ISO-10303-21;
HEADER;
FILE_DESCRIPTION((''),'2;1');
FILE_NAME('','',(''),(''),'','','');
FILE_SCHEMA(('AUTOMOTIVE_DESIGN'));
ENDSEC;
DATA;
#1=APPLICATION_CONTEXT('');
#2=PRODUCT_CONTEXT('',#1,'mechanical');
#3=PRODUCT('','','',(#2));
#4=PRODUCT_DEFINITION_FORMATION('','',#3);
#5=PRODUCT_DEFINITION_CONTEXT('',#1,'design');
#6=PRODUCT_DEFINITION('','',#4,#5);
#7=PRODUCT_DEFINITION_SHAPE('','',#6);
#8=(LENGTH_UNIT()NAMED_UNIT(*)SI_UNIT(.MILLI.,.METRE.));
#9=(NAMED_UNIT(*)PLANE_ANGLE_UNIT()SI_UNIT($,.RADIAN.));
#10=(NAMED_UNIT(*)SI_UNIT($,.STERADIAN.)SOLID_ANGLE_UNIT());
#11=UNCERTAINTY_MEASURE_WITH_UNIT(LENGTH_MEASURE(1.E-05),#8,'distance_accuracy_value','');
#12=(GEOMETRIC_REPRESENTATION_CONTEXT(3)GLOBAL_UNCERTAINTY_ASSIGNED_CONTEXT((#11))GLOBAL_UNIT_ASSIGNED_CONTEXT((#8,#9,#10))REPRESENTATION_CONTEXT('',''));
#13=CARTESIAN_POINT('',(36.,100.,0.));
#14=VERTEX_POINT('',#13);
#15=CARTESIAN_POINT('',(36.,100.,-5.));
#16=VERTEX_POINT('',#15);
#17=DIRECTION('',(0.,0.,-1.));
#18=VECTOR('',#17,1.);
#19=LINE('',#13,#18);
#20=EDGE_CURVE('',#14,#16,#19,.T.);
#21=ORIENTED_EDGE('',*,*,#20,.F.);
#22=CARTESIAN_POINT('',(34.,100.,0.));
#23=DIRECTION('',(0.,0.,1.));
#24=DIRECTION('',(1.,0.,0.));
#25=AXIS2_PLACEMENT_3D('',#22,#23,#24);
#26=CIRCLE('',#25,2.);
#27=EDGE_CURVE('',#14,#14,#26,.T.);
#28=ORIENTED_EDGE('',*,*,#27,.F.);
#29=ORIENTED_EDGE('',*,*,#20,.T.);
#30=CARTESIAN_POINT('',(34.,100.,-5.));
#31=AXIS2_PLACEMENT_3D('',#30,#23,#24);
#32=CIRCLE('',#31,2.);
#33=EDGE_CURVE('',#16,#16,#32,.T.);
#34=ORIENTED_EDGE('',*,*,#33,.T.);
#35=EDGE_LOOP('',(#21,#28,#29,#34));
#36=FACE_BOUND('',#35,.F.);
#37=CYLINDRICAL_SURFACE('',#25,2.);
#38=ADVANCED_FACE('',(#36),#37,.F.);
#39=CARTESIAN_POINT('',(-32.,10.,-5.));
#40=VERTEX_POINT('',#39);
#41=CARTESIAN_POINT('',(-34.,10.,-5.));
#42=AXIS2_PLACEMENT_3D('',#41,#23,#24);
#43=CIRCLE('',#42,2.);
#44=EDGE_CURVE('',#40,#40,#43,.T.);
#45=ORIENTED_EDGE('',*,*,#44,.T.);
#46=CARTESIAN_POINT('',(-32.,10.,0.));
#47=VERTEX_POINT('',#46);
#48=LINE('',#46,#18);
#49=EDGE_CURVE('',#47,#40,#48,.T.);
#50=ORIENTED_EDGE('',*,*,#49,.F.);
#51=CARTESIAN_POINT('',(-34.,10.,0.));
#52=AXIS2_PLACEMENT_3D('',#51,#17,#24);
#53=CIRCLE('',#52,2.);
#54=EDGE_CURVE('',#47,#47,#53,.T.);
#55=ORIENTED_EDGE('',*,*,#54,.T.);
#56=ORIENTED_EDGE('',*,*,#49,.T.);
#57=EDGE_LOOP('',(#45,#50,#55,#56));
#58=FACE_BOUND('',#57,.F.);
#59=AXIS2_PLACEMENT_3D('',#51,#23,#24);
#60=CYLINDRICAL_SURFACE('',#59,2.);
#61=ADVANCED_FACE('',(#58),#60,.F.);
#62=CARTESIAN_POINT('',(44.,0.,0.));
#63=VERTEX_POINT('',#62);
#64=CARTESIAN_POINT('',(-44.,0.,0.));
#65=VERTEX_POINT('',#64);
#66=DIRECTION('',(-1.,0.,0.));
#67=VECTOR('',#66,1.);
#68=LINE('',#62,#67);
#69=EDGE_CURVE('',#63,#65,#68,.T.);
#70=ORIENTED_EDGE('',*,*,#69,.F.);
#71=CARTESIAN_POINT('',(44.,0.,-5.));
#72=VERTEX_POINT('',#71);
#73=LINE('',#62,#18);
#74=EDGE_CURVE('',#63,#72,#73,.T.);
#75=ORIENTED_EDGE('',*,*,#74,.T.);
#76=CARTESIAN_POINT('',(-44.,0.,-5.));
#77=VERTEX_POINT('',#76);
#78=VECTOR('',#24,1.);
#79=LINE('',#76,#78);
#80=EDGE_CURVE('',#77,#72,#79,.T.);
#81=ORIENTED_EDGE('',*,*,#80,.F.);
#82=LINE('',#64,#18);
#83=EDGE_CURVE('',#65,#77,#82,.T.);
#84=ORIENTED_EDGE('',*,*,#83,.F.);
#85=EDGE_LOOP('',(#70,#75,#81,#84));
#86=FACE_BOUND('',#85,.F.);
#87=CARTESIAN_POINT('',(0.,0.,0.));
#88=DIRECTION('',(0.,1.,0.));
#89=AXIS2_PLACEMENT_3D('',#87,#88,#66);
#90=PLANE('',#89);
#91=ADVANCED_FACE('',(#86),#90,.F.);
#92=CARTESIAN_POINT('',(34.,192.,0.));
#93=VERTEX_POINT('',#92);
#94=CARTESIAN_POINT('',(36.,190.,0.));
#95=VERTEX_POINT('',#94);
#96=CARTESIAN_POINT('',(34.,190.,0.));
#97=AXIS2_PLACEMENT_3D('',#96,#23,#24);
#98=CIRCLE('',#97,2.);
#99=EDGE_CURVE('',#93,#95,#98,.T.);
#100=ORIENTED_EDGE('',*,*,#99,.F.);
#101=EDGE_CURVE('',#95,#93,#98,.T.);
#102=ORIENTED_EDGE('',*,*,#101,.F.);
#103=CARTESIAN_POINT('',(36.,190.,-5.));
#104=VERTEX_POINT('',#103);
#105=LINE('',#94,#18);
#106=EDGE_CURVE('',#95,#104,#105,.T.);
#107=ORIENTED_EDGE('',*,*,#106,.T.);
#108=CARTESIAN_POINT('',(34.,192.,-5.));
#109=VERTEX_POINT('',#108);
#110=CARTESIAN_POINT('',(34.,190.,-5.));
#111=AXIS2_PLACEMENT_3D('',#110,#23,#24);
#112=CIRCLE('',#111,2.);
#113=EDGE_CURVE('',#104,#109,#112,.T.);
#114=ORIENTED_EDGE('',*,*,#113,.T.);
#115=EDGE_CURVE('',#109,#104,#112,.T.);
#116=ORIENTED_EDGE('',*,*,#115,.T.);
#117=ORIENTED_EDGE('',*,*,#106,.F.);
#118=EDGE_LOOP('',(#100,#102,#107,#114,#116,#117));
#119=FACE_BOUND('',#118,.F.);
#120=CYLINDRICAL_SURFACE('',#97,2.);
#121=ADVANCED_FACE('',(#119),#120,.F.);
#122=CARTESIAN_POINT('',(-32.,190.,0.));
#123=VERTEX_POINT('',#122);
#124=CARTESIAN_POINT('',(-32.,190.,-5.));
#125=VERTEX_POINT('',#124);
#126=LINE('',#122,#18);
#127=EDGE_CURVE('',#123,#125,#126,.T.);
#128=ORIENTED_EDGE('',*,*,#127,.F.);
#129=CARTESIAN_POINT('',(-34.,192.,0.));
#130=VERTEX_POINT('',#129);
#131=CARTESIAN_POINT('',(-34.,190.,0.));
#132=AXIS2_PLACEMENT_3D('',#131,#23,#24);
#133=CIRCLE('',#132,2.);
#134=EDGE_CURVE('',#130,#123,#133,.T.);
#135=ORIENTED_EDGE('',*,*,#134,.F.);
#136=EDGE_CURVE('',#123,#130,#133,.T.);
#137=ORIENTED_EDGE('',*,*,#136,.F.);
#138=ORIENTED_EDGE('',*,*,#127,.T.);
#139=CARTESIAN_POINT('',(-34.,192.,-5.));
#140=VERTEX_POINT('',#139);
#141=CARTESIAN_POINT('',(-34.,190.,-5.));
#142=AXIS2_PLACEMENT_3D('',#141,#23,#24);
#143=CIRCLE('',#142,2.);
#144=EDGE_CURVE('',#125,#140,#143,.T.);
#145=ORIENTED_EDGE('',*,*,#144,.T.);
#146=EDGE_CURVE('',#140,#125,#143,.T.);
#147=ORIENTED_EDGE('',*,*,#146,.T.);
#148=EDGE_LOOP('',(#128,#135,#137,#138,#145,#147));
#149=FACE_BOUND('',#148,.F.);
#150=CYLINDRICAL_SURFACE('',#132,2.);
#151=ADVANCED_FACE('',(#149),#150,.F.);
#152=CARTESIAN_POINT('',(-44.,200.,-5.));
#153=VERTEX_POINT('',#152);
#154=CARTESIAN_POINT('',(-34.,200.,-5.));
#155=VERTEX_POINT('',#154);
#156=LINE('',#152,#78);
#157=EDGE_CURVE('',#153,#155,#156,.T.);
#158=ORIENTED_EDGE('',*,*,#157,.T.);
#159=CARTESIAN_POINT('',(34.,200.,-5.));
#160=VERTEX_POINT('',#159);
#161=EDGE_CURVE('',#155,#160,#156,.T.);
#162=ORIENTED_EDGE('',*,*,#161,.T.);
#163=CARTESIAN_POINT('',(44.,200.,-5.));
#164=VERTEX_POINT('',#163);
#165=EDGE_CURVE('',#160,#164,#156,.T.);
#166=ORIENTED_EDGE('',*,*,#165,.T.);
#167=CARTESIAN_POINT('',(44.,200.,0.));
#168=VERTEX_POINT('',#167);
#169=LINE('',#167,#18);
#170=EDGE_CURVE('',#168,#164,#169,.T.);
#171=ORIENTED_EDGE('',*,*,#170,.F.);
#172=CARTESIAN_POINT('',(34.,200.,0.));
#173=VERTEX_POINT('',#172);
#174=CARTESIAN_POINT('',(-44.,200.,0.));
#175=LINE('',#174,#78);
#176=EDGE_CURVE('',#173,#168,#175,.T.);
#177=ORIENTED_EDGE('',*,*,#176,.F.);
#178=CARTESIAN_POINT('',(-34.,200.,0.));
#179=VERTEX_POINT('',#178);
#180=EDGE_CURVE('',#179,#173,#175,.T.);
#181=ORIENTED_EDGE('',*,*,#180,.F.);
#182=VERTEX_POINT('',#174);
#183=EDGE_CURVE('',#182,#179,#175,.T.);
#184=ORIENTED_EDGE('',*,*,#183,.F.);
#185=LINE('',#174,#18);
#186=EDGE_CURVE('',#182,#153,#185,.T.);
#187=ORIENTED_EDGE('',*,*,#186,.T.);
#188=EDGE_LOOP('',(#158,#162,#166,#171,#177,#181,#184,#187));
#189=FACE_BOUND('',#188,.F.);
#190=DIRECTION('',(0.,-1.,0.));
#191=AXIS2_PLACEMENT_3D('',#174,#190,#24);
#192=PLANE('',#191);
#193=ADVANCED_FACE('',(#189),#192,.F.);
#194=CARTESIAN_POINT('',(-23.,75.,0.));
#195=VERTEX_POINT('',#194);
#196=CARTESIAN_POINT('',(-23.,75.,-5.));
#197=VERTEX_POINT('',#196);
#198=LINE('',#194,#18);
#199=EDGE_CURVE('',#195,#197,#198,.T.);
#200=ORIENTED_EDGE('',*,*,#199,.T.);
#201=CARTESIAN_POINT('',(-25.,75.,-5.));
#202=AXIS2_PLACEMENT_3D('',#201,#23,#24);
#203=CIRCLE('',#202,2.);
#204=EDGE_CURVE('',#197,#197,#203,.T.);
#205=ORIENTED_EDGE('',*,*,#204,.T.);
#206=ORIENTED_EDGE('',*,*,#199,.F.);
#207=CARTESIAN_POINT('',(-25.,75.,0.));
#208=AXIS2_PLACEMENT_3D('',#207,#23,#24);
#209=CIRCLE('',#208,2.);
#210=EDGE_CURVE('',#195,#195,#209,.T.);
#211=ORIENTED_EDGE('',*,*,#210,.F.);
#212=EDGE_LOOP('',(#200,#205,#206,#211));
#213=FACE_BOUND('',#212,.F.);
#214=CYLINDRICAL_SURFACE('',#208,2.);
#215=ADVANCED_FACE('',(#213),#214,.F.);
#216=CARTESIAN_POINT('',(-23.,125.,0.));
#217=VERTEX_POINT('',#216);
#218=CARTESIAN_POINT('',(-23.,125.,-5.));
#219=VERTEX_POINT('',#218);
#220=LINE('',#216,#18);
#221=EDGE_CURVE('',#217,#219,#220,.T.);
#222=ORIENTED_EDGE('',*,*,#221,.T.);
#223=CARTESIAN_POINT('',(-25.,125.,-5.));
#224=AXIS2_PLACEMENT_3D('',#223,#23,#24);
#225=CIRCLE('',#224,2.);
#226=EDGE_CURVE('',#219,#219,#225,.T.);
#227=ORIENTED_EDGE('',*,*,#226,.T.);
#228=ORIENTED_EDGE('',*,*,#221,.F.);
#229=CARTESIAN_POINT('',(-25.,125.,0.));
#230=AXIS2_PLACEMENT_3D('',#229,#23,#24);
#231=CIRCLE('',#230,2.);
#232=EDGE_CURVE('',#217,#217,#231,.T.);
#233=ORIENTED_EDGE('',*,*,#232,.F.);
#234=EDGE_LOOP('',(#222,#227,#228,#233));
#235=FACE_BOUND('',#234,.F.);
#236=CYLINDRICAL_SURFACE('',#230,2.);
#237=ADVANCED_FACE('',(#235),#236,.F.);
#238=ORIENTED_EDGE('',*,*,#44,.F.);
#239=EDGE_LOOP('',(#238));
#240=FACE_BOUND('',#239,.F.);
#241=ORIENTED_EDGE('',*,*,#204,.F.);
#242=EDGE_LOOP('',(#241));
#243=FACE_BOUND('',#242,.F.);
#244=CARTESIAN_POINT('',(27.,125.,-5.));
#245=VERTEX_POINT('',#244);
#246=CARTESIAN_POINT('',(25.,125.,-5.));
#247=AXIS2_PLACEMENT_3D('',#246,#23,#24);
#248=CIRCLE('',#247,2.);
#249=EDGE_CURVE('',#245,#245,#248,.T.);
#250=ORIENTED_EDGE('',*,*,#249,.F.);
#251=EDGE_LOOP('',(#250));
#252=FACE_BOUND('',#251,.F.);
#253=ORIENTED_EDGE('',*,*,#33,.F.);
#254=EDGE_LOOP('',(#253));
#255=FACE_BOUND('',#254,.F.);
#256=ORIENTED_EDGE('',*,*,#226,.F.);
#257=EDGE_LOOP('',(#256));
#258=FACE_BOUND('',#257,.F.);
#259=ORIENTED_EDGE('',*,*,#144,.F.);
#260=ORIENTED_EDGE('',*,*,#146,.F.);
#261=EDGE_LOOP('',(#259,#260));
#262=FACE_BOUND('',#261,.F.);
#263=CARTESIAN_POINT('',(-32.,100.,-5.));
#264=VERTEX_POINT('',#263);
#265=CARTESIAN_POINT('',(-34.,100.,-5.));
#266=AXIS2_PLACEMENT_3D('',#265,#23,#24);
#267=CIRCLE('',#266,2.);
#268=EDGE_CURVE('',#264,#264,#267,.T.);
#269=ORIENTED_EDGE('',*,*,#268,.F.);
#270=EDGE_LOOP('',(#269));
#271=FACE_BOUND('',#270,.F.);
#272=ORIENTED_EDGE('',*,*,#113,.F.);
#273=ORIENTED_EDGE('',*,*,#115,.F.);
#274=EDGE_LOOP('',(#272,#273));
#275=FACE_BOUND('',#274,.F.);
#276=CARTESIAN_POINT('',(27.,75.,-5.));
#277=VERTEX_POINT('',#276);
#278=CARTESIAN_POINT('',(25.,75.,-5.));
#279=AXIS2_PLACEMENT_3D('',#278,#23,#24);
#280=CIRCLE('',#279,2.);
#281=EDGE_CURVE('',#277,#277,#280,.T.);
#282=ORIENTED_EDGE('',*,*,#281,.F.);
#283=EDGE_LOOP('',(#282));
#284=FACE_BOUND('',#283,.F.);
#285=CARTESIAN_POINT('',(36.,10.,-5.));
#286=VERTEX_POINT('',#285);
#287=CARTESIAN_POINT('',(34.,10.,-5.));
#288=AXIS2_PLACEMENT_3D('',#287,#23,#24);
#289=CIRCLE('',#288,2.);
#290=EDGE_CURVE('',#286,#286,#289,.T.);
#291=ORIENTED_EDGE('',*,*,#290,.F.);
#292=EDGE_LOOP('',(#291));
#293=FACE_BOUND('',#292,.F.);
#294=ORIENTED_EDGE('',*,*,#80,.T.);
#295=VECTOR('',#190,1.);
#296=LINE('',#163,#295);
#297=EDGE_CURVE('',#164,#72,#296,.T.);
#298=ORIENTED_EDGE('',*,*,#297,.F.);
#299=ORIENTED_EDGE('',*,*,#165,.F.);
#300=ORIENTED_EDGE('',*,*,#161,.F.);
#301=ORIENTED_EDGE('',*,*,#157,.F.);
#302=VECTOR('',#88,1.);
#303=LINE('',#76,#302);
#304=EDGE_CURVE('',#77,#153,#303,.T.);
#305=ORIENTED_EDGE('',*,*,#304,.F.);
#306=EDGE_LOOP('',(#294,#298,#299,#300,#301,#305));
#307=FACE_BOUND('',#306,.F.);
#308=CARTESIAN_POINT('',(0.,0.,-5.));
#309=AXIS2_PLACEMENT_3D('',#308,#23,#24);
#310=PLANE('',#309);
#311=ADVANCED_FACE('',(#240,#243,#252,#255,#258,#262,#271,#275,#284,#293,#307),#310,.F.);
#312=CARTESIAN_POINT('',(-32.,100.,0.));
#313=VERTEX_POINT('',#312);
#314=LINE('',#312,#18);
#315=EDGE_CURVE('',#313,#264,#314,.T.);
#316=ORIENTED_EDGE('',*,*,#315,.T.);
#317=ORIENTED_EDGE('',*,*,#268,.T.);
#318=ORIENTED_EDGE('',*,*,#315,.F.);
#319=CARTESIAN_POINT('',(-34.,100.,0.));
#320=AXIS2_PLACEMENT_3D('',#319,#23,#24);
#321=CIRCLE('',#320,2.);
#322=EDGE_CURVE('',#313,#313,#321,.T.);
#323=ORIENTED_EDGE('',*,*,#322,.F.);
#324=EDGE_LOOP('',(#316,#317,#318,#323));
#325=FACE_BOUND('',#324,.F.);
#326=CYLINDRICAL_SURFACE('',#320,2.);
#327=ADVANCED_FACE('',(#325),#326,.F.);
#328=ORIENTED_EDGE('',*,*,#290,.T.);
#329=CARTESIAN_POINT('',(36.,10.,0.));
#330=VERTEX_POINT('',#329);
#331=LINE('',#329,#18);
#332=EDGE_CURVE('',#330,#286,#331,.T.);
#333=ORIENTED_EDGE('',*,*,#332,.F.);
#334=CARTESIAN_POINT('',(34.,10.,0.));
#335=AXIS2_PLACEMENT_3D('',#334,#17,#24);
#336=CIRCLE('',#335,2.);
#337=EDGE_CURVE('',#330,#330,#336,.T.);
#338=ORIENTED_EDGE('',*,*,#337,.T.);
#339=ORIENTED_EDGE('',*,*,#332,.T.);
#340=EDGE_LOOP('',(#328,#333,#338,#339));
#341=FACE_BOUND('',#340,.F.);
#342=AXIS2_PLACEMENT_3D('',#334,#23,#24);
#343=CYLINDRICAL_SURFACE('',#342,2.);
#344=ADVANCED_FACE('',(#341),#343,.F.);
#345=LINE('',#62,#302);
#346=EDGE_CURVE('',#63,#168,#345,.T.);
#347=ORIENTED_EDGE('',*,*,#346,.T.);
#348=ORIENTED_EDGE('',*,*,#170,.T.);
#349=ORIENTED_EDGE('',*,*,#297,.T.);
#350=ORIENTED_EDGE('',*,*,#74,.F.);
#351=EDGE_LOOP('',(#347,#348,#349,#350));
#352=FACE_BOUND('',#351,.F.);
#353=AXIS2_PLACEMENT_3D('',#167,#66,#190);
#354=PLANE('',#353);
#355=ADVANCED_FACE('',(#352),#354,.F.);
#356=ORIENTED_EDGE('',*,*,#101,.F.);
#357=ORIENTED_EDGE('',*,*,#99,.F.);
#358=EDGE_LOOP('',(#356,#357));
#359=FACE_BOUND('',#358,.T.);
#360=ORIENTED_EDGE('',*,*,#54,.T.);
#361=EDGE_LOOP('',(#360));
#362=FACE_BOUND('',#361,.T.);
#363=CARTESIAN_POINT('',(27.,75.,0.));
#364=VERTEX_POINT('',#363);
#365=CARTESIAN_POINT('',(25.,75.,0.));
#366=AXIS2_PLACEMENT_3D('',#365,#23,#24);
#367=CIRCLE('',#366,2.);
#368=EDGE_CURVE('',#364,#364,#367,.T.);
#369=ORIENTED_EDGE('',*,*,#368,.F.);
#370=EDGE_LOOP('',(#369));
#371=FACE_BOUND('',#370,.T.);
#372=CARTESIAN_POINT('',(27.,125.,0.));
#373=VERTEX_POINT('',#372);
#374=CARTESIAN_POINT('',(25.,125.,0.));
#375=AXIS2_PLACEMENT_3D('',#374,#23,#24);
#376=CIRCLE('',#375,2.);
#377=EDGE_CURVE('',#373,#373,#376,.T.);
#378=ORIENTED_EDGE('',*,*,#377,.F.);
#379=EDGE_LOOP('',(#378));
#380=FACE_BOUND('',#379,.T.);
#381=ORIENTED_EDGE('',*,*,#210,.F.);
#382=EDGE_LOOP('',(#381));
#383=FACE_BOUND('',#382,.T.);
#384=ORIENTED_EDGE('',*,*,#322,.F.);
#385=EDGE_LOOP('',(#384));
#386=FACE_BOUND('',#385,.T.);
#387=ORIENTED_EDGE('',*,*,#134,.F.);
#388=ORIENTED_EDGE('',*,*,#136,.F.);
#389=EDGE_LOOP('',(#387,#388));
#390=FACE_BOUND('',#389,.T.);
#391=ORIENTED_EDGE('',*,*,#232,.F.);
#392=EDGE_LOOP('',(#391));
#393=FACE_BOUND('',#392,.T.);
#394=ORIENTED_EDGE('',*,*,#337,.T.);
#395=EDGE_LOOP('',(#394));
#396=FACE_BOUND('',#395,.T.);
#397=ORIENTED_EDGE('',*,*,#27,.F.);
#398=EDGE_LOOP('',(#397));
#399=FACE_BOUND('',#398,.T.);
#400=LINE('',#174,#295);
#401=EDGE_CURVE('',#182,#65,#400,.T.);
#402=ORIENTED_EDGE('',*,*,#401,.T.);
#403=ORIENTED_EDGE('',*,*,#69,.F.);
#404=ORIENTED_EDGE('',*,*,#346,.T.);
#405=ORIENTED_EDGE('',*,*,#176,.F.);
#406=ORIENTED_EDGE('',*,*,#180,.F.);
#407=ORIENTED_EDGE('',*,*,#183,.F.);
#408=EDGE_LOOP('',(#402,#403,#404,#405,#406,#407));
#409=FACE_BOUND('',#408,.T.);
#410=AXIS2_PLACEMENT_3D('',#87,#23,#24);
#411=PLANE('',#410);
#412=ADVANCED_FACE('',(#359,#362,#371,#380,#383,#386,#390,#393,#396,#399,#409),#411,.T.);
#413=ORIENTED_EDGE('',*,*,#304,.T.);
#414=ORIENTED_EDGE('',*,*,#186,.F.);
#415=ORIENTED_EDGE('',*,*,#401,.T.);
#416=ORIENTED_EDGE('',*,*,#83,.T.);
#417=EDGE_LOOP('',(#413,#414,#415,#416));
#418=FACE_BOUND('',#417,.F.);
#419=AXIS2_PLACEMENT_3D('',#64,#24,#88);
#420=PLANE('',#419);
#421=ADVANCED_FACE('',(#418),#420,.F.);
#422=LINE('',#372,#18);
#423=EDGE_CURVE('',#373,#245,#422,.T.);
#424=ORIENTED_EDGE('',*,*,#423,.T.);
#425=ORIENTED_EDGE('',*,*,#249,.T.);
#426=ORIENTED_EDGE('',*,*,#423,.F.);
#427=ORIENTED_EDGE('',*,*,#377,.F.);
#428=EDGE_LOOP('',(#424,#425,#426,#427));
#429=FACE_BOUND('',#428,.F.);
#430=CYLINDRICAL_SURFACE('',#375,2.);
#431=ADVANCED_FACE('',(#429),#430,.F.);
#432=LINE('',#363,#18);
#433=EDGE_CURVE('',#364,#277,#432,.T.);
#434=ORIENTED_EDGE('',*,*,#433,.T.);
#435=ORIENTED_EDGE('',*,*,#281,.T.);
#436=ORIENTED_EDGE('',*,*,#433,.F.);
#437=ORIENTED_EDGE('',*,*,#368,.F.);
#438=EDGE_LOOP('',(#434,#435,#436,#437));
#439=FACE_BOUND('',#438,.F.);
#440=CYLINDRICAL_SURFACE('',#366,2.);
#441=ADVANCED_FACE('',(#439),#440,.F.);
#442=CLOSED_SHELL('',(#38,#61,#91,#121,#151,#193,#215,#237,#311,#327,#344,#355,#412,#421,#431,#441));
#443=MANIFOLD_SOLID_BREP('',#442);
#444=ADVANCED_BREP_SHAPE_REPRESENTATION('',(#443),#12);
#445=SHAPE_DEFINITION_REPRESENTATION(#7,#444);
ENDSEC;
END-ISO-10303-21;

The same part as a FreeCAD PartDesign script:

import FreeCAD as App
import Part
import Sketcher
from FreeCAD import Vector
Q = App.Units.Quantity

doc = App.newDocument("Part")
body = doc.addObject("PartDesign::Body", "Body")

# Sketch on XY plane
sketch1 = body.newObject("Sketcher::SketchObject", "Sketch")
sketch1.AttachmentSupport = (doc.getObject("XY_Plane"), [""])
sketch1.MapMode = "FlatFace"
sketch1.addGeometry([
    Part.LineSegment(Vector(44, 0, 0), Vector(44, 200, 0)),  # 0
    Part.LineSegment(Vector(44, 200, 0), Vector(34, 200, 0)),  # 1
    Part.LineSegment(Vector(34, 200, 0), Vector(-34, 200, 0)),  # 2
    Part.LineSegment(Vector(-34, 200, 0), Vector(-44, 200, 0)),  # 3
    Part.LineSegment(Vector(-44, 200, 0), Vector(-44, 0, 0)),  # 4
    Part.LineSegment(Vector(-44, 0, 0), Vector(44, 0, 0)),  # 5
    Part.Circle(Vector(-34, 10, 0), Vector(0, 0, 1), 2),  # 6
    Part.Circle(Vector(34, 10, 0), Vector(0, 0, 1), 2),  # 7
    Part.Circle(Vector(-25, 75, 0), Vector(0, 0, 1), 2),  # 8
    Part.Circle(Vector(25, 75, 0), Vector(0, 0, 1), 2),  # 9
    Part.Circle(Vector(-34, 100, 0), Vector(0, 0, 1), 2),  # 10
    Part.Circle(Vector(-25, 125, 0), Vector(0, 0, 1), 2),  # 11
    Part.Circle(Vector(-34, 190, 0), Vector(0, 0, 1), 2),  # 12
    Part.Circle(Vector(34, 100, 0), Vector(0, 0, 1), 2),  # 13
    Part.Circle(Vector(25, 125, 0), Vector(0, 0, 1), 2),  # 14
    Part.Circle(Vector(34, 190, 0), Vector(0, 0, 1), 2),  # 15
], False)
sketch1.addConstraint([
    Sketcher.Constraint("Coincident", 0, 2, 1, 1),
    Sketcher.Constraint("Coincident", 1, 2, 2, 1),
    Sketcher.Constraint("Coincident", 2, 2, 3, 1),
    Sketcher.Constraint("Coincident", 3, 2, 4, 1),
    Sketcher.Constraint("Coincident", 4, 2, 5, 1),
    Sketcher.Constraint("Coincident", 5, 2, 0, 1),
    Sketcher.Constraint("Vertical", 0),
    Sketcher.Constraint("Horizontal", 1),
    Sketcher.Constraint("Horizontal", 2),
    Sketcher.Constraint("Horizontal", 3),
    Sketcher.Constraint("Vertical", 4),
    Sketcher.Constraint("Horizontal", 5),
    Sketcher.Constraint("Equal", 6, 7),
    Sketcher.Constraint("Equal", 7, 8),
    Sketcher.Constraint("Equal", 8, 9),
    Sketcher.Constraint("Equal", 9, 10),
    Sketcher.Constraint("Equal", 10, 11),
    Sketcher.Constraint("Equal", 11, 12),
    Sketcher.Constraint("Equal", 12, 13),
    Sketcher.Constraint("Equal", 13, 14),
    Sketcher.Constraint("Equal", 14, 15),
    Sketcher.Constraint("Symmetric", 4, 2, 5, 2, -1, 1),
    Sketcher.Constraint("Symmetric", 6, 3, 7, 3, -2),
    Sketcher.Constraint("Symmetric", 8, 3, 9, 3, -2),
    Sketcher.Constraint("Symmetric", 10, 3, 13, 3, -2),
    Sketcher.Constraint("Symmetric", 11, 3, 14, 3, -2),
    Sketcher.Constraint("Symmetric", 12, 3, 15, 3, -2),
    Sketcher.Constraint("Vertical", 6, 3, 10, 3),
    Sketcher.Constraint("Vertical", 8, 3, 11, 3),
    Sketcher.Constraint("Vertical", 10, 3, 12, 3),
    Sketcher.Constraint("Vertical", 15, 3, 1, 2),
    Sketcher.Constraint("Vertical", 12, 3, 2, 2),
    Sketcher.Constraint("Diameter", 6, Q("4 mm")),
    Sketcher.Constraint("DistanceX", 1, 2, 1, 1, Q("10 mm")),
    Sketcher.Constraint("DistanceX", 5, 1, 5, 2, Q("88 mm")),
    Sketcher.Constraint("DistanceY", 0, 1, 0, 2, Q("200 mm")),
    Sketcher.Constraint("DistanceY", -1, 1, 6, 3, Q("10 mm")),
    Sketcher.Constraint("DistanceX", 8, 3, 9, 3, Q("50 mm")),
    Sketcher.Constraint("DistanceY", 8, 3, 11, 3, Q("50 mm")),
    Sketcher.Constraint("DistanceY", 15, 3, 0, 2, Q("10 mm")),
    Sketcher.Constraint("DistanceY", -1, 1, 8, 3, Q("75 mm")),
    Sketcher.Constraint("DistanceY", -1, 1, 10, 3, Q("100 mm")),
])
pad1 = body.newObject("PartDesign::Pad", "Pad")
pad1.Profile = sketch1
pad1.Length = 5
pad1.Reversed = True

doc.recompute()
